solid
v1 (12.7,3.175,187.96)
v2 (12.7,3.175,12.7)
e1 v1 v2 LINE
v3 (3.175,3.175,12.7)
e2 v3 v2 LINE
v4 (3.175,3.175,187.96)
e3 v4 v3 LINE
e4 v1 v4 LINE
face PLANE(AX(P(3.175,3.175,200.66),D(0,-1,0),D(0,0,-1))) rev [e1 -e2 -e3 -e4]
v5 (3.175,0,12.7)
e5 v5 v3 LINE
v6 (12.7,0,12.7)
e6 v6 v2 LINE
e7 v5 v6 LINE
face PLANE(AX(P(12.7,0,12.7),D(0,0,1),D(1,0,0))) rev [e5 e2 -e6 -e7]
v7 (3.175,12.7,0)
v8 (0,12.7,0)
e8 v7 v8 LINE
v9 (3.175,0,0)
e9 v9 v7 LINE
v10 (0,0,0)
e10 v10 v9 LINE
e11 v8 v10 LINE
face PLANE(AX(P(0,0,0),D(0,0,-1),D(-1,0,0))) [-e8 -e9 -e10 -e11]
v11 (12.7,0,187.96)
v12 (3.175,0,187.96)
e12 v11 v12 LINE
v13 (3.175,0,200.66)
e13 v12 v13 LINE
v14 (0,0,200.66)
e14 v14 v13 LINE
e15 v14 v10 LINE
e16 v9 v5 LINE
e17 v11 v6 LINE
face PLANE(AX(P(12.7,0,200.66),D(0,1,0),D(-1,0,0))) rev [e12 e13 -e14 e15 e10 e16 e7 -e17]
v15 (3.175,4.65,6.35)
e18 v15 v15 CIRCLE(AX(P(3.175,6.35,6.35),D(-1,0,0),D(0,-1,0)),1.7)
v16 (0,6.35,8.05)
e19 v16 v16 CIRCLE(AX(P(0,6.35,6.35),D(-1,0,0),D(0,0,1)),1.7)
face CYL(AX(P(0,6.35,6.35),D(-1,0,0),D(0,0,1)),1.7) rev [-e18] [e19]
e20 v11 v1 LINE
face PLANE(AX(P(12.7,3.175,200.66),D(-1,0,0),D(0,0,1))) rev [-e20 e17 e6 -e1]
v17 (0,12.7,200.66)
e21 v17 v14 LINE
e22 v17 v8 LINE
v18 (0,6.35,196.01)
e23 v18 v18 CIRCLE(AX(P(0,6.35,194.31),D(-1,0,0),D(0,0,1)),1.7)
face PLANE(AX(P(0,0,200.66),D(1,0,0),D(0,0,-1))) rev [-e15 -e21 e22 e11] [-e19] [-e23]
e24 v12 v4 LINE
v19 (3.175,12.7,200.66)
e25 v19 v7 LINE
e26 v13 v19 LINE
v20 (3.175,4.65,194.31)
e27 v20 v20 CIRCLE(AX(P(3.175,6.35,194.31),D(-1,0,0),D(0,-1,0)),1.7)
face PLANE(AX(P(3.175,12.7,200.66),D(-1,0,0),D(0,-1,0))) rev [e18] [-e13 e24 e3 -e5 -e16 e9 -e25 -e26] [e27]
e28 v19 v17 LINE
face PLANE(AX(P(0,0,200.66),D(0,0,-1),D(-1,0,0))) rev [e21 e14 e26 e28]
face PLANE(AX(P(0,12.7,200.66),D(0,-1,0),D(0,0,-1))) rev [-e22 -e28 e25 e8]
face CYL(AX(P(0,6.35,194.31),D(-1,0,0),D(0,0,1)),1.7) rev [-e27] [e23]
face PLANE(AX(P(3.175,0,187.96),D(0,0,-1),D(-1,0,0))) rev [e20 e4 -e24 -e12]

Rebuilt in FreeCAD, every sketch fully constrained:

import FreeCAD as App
import Part
import Sketcher

V = App.Vector
Q = App.Units.Quantity


def add_polygon(sketch, points):
    """Adds a closed chain of lines whose ends are joined by coincident constraints."""
    first, n = sketch.GeometryCount, len(points)
    for a, b in zip(points, points[1:] + points[:1]):
        sketch.addGeometry(Part.LineSegment(App.Vector(*a, 0), App.Vector(*b, 0)), False)
    for i in range(n):
        sketch.addConstraint(Sketcher.Constraint("Coincident", first + i, 2, first + (i + 1) % n, 1))

doc = App.newDocument("Part")
params = doc.addObject("Spreadsheet::Sheet", "Params")
for row, (alias, value) in enumerate([
    ("sketch1_width", "0.5 in"),
    ("sketch1_width2", "0.375 in"),
    ("pad1_length", "7.9 in"),
    ("sketch2_height", "0.5 in"),
    ("sketch2_width", "0.375 in"),
    ("hole_diameter", "3.4 mm"),
], start=1):
    params.set(f"A{row}", alias)
    params.set(f"B{row}", "=" + value)
    params.setAlias(f"B{row}", alias)

body = doc.addObject("PartDesign::Body", "Body")

# Sketch on XY plane
sketch1 = doc.addObject("Sketcher::SketchObject", "Sketch")
body.addObject(sketch1)
sketch1.AttachmentSupport = (doc.XY_Plane, [""])
sketch1.MapMode = "FlatFace"
add_polygon(sketch1, [(0, 12.7), (0, 0), (12.7, 0), (12.7, 3.2), (3.2, 3.2), (3.2, 12.7)])  # lines 0-5
sketch1.addConstraint([
    Sketcher.Constraint("Vertical", 0),
    Sketcher.Constraint("Horizontal", 1),
    Sketcher.Constraint("Vertical", 2),
    Sketcher.Constraint("Horizontal", 3),
    Sketcher.Constraint("Vertical", 4),
    Sketcher.Constraint("Horizontal", 5),
    Sketcher.Constraint("Coincident", 0, 2, -1, 1),
    Sketcher.Constraint("Equal", 1, 0),
    Sketcher.Constraint("Equal", 5, 2),
    Sketcher.Constraint("DistanceX", 1, 1, 1, 2, Q("0.5 in")),
    Sketcher.Constraint("DistanceX", 3, 2, 3, 1, Q("0.375 in")),
])
sketch1.setExpression("Constraints[15]", "Params.sketch1_width")
sketch1.setExpression("Constraints[16]", "Params.sketch1_width2")
pad1 = doc.addObject("PartDesign::Pad", "Pad")
body.addObject(pad1)
pad1.Profile = sketch1
pad1.setExpression("Length", "Params.pad1_length")

# Sketch on XZ plane
sketch2 = doc.addObject("Sketcher::SketchObject", "Sketch001")
body.addObject(sketch2)
sketch2.AttachmentSupport = (doc.XZ_Plane, [""])
sketch2.MapMode = "FlatFace"
sketch2.AttachmentOffset = App.Placement(V(0, 0, -0.125 * 25.4), App.Rotation())
add_polygon(sketch2, [(3, 0), (3, 13), (13, 13), (13, 0)])  # lines 0-3
add_polygon(sketch2, [(3, 188), (3, 201), (13, 201), (13, 188)])  # lines 4-7
sketch2.addConstraint([
    Sketcher.Constraint("Vertical", 0),
    Sketcher.Constraint("Horizontal", 1),
    Sketcher.Constraint("Vertical", 2),
    Sketcher.Constraint("Horizontal", 3),
    Sketcher.Constraint("Vertical", 4),
    Sketcher.Constraint("Horizontal", 5),
    Sketcher.Constraint("Vertical", 6),
    Sketcher.Constraint("Horizontal", 7),
    Sketcher.Constraint("PointOnObject", 2, 2, -1),
    Sketcher.Constraint("Vertical", 3, 2, 4, 2),
    Sketcher.Constraint("Vertical", 2, 2, 5, 2),
    Sketcher.Constraint("Equal", 2, 4),
    Sketcher.Constraint("DistanceY", 0, 1, 0, 2, Q("0.5 in")),
    Sketcher.Constraint("DistanceX", -1, 1, 1, 2, Q("0.5 in")),
    Sketcher.Constraint("DistanceY", -1, 1, 4, 2, Q("7.9 in")),
    Sketcher.Constraint("DistanceX", 1, 1, 1, 2, Q("0.375 in")),
])
sketch2.setExpression("Constraints[20]", "Params.sketch2_height")
sketch2.setExpression("Constraints[23]", "Params.sketch2_width")
pocket1 = doc.addObject("PartDesign::Pocket", "Pocket")
body.addObject(pocket1)
pocket1.Profile = sketch2
pocket1.Type = "ThroughAll"
pocket1.Reversed = True

# Sketch on YZ plane
sketch3 = doc.addObject("Sketcher::SketchObject", "Sketch002")
body.addObject(sketch3)
sketch3.AttachmentSupport = (doc.YZ_Plane, [""])
sketch3.MapMode = "FlatFace"
sketch3.addGeometry([
    Part.Circle(V(6.3, 6.3, 0), V(0, 0, 1), 1.7),
    Part.Circle(V(6.3, 194.3, 0), V(0, 0, 1), 1.7),
], False)
sketch3.addConstraint([
    Sketcher.Constraint("Equal", 0, 1),
    Sketcher.Constraint("Vertical", 0, 3, 1, 3),
    Sketcher.Constraint("DistanceY", 0, 3, 1, 3, Q("7.4 in")),
    Sketcher.Constraint("Diameter", 0, Q("3.4 mm")),
    Sketcher.Constraint("DistanceX", -1, 1, 0, 3, Q("0.25 in")),
    Sketcher.Constraint("DistanceY", -1, 1, 0, 3, Q("0.25 in")),
])
doc.recompute()
hole = doc.addObject("PartDesign::Hole", "Hole")
body.addObject(hole)
hole.Profile = sketch3
hole.ThreadType = "None"
hole.setExpression("Diameter", "Params.hole_diameter")
hole.DepthType = "ThroughAll"
hole.Reversed = True

doc.recompute()
